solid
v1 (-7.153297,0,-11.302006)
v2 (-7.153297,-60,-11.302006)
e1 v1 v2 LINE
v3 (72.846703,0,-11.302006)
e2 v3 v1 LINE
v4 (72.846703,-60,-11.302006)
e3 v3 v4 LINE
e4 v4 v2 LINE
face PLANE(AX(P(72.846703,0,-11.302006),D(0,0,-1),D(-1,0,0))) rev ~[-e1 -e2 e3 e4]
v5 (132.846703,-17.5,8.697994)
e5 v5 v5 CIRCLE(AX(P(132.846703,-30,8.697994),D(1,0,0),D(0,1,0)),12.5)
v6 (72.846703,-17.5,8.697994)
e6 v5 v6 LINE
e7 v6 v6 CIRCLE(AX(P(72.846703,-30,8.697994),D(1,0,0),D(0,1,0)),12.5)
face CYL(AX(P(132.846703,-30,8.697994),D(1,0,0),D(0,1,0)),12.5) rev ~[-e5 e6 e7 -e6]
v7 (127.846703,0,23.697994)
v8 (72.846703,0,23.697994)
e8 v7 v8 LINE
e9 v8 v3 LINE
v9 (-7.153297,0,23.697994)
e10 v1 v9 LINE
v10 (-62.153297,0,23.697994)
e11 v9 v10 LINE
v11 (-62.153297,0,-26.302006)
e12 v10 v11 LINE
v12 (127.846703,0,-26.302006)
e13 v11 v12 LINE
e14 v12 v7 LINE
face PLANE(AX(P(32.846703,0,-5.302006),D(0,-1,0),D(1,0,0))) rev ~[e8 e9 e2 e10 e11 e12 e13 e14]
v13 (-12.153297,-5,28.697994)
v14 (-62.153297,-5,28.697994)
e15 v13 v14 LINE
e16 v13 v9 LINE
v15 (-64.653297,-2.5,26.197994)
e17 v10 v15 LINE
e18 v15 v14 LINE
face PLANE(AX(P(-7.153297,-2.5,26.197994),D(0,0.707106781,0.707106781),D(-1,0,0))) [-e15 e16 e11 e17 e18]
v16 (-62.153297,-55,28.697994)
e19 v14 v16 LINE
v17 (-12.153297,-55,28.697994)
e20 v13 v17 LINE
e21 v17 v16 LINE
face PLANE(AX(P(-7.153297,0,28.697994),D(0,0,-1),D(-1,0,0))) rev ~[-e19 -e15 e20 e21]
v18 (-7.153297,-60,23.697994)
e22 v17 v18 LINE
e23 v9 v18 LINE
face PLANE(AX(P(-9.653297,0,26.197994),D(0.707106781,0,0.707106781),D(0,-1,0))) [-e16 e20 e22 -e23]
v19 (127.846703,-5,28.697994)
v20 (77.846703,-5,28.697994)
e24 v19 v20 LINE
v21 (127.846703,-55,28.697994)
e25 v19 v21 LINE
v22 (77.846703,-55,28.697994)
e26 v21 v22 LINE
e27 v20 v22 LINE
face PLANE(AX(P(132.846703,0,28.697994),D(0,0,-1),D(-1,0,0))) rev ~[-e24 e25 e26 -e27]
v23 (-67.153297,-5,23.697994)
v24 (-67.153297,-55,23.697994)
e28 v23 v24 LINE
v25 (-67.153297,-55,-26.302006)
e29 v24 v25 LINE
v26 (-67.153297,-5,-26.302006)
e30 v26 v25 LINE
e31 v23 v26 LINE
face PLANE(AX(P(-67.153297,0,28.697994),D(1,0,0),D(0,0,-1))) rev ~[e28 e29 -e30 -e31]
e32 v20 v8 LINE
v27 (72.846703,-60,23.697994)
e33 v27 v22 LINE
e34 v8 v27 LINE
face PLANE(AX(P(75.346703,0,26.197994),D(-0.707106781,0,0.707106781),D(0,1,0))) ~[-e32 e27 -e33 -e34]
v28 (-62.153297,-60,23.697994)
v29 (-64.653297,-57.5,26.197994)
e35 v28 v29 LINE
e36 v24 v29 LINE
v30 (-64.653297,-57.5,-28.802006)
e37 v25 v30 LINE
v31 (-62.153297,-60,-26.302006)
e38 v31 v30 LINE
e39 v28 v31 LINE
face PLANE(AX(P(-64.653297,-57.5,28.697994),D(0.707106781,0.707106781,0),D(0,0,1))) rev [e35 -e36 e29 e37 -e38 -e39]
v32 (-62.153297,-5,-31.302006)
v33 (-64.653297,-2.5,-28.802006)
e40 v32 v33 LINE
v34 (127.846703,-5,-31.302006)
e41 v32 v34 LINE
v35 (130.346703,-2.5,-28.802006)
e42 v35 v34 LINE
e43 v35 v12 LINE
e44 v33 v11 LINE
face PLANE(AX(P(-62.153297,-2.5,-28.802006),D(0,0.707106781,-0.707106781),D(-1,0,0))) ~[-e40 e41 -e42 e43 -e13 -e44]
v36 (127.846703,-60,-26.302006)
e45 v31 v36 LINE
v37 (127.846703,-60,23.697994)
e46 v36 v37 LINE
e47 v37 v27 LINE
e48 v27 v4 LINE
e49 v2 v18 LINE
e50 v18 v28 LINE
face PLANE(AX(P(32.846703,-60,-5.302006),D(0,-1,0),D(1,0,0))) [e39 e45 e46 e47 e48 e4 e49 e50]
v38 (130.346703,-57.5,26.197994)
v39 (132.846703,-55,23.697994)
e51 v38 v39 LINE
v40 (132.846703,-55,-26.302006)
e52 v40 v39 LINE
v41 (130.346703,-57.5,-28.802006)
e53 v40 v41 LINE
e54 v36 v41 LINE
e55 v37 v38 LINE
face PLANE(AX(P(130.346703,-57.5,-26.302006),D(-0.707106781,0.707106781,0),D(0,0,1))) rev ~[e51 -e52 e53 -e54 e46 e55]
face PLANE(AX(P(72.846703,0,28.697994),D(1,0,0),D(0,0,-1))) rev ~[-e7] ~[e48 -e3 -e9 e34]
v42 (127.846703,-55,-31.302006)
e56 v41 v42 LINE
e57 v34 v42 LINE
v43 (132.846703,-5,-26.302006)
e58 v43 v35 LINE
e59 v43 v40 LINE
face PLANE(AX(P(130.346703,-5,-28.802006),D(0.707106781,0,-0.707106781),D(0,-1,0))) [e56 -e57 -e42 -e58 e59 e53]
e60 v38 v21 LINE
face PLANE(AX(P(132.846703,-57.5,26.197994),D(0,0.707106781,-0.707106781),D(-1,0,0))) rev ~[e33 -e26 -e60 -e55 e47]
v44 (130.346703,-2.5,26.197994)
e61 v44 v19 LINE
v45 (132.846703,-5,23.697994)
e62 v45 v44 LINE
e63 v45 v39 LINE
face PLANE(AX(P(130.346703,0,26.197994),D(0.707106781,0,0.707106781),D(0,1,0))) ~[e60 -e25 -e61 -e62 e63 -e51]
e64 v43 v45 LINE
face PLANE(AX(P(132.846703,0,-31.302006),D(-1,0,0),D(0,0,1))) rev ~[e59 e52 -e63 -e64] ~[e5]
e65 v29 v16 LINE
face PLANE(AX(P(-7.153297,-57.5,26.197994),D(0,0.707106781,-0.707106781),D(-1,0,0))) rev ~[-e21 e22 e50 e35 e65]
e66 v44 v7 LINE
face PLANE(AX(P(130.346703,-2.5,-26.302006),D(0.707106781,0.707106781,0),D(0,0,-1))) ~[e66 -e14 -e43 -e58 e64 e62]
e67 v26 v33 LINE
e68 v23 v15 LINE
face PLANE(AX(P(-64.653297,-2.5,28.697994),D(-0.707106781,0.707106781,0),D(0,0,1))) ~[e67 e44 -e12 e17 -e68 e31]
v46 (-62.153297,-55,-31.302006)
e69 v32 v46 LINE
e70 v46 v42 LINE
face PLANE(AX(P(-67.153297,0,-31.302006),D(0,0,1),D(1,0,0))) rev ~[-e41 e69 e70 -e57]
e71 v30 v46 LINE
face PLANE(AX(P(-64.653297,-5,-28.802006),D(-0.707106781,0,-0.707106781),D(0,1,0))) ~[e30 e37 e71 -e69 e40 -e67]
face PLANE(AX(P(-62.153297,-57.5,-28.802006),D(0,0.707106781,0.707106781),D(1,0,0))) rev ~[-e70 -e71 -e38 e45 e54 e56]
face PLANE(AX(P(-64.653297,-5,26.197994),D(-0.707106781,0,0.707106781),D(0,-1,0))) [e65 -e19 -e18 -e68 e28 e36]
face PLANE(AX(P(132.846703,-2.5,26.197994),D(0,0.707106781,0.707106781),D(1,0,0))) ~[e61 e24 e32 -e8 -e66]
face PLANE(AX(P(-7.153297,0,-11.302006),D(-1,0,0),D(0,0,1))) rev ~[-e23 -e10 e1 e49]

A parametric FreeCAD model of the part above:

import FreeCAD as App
import Part
import Sketcher

V = App.Vector


def edges_at(feature, points):
    """Names of the edges that pass closest to the given points."""
    edges = feature.Shape.Edges
    near = lambda p: min(range(len(edges)), key=lambda i: edges[i].distToShape(Part.Vertex(*p))[0])
    return sorted({f"Edge{near(p) + 1}" for p in points})

doc = App.newDocument("Part")
body = doc.addObject("PartDesign::Body", "Body")

sketch1 = body.newObject("Sketcher::SketchObject", "Sketch")
sketch1.AttachmentSupport = (doc.getObject("XZ_Plane"), [""])
sketch1.MapMode = "FlatFace"
sketch1.addGeometry(Part.LineSegment(V(-7.153297, 28.697994, 0), V(-67.153297, 28.697994, 0)), False)
sketch1.addGeometry(Part.LineSegment(V(-67.153297, 28.697994, 0), V(-67.153297, -31.302006, 0)), False)
sketch1.addGeometry(Part.LineSegment(V(-67.153297, -31.302006, 0), V(132.846703, -31.302006, 0)), False)
sketch1.addGeometry(Part.LineSegment(V(132.846703, -31.302006, 0), V(132.846703, 28.697994, 0)), False)
sketch1.addGeometry(Part.LineSegment(V(132.846703, 28.697994, 0), V(72.846703, 28.697994, 0)), False)
sketch1.addGeometry(Part.LineSegment(V(72.846703, 28.697994, 0), V(72.846703, -11.302006, 0)), False)
sketch1.addGeometry(Part.LineSegment(V(72.846703, -11.302006, 0), V(-7.153297, -11.302006, 0)), False)
sketch1.addGeometry(Part.LineSegment(V(-7.153297, -11.302006, 0), V(-7.153297, 28.697994, 0)), False)
sketch1.addConstraint(Sketcher.Constraint("Coincident", 0, 2, 1, 1))
sketch1.addConstraint(Sketcher.Constraint("Coincident", 1, 2, 2, 1))
sketch1.addConstraint(Sketcher.Constraint("Coincident", 2, 2, 3, 1))
sketch1.addConstraint(Sketcher.Constraint("Coincident", 3, 2, 4, 1))
sketch1.addConstraint(Sketcher.Constraint("Coincident", 4, 2, 5, 1))
sketch1.addConstraint(Sketcher.Constraint("Coincident", 5, 2, 6, 1))
sketch1.addConstraint(Sketcher.Constraint("Coincident", 6, 2, 7, 1))
sketch1.addConstraint(Sketcher.Constraint("Coincident", 7, 2, 0, 1))
sketch1.addConstraint(Sketcher.Constraint("Horizontal", 0))
sketch1.addConstraint(Sketcher.Constraint("Vertical", 1))
sketch1.addConstraint(Sketcher.Constraint("Horizontal", 2))
sketch1.addConstraint(Sketcher.Constraint("Vertical", 3))
sketch1.addConstraint(Sketcher.Constraint("Horizontal", 4))
sketch1.addConstraint(Sketcher.Constraint("Vertical", 5))
sketch1.addConstraint(Sketcher.Constraint("Horizontal", 6))
sketch1.addConstraint(Sketcher.Constraint("Vertical", 7))
sketch1.addConstraint(Sketcher.Constraint("Horizontal", 0, 2, 3, 2))
sketch1.addConstraint(Sketcher.Constraint("Equal", 0, 4))
sketch1.addConstraint(Sketcher.Constraint("Equal", 4, 1))
sketch1.addConstraint(Sketcher.Constraint("DistanceX", 0, 2, 0, 1, 60.0))
sketch1.addConstraint(Sketcher.Constraint("DistanceX", 2, 1, 2, 2, 200.0))
sketch1.addConstraint(Sketcher.Constraint("DistanceY", 5, 2, 5, 1, 40.0))
sketch1.addConstraint(Sketcher.Constraint("DistanceX", 0, 2, -1, 1, 67.153297))
sketch1.addConstraint(Sketcher.Constraint("DistanceY", -1, 1, 0, 2, 28.697994))
pad1 = body.newObject("PartDesign::Pad", "Pad")
pad1.Profile = sketch1
pad1.Length = 60

sketch2 = body.newObject("Sketcher::SketchObject", "Sketch001")
sketch2.AttachmentSupport = (doc.getObject("YZ_Plane"), [""])
sketch2.MapMode = "FlatFace"
sketch2.AttachmentOffset = App.Placement(V(0, 0, 132.846703), App.Rotation())
sketch2.addGeometry(Part.Circle(V(-30, 8.697994, 0), V(0, 0, 1), 12.5), False)
sketch2.addConstraint(Sketcher.Constraint("Diameter", 0, 25.0))
sketch2.addConstraint(Sketcher.Constraint("DistanceX", 0, 3, -1, 1, 30.0))
sketch2.addConstraint(Sketcher.Constraint("DistanceY", -1, 1, 0, 3, 8.697994))
pocket1 = body.newObject("PartDesign::Pocket", "Pocket")
pocket1.Profile = sketch2
pocket1.Length = 99
doc.recompute()

chamfer = body.newObject("PartDesign::Chamfer", "Chamfer")
chamfer.Base = (pocket1, edges_at(pocket1, [(-67.153, -60, -1.302), (-67.153, 0, -1.302)]))
chamfer.Size = 5
doc.recompute()

chamfer2 = body.newObject("PartDesign::Chamfer", "Chamfer001")
chamfer2.Base = (chamfer, edges_at(chamfer, [(35.347, -60, -31.302)]))
chamfer2.Size = 5
doc.recompute()

chamfer3 = body.newObject("PartDesign::Chamfer", "Chamfer002")
chamfer3.Base = (chamfer2, edges_at(chamfer2, [(-67.153, -30, -31.302)]))
chamfer3.Size = 5
doc.recompute()

chamfer4 = body.newObject("PartDesign::Chamfer", "Chamfer003")
chamfer4.Base = (chamfer3, edges_at(chamfer3, [
    (-67.153, -30, 28.698),
    (132.847, -30, 28.698),
    (102.847, 0, 28.698),
    (102.847, -60, 28.698),
    (72.847, -30, 28.698),
    (35.347, 0, -31.302),
]))
chamfer4.Size = 5
doc.recompute()

chamfer5 = body.newObject("PartDesign::Chamfer", "Chamfer004")
chamfer5.Base = (chamfer4, edges_at(chamfer4, [(132.847, -60, -1.302)]))
chamfer5.Size = 5
doc.recompute()

chamfer6 = body.newObject("PartDesign::Chamfer", "Chamfer005")
chamfer6.Base = (chamfer5, edges_at(chamfer5, [(132.847, 0, -1.302)]))
chamfer6.Size = 5
doc.recompute()

chamfer7 = body.newObject("PartDesign::Chamfer", "Chamfer006")
chamfer7.Base = (chamfer6, edges_at(chamfer6, [(132.847, -30, -31.302)]))
chamfer7.Size = 5
doc.recompute()

chamfer8 = body.newObject("PartDesign::Chamfer", "Chamfer007")
chamfer8.Base = (chamfer7, edges_at(chamfer7, [(-7.153, -30, 28.698), (-34.653, -60, 28.698), (-34.653, 0, 28.698)]))
chamfer8.Size = 5

doc.recompute()
